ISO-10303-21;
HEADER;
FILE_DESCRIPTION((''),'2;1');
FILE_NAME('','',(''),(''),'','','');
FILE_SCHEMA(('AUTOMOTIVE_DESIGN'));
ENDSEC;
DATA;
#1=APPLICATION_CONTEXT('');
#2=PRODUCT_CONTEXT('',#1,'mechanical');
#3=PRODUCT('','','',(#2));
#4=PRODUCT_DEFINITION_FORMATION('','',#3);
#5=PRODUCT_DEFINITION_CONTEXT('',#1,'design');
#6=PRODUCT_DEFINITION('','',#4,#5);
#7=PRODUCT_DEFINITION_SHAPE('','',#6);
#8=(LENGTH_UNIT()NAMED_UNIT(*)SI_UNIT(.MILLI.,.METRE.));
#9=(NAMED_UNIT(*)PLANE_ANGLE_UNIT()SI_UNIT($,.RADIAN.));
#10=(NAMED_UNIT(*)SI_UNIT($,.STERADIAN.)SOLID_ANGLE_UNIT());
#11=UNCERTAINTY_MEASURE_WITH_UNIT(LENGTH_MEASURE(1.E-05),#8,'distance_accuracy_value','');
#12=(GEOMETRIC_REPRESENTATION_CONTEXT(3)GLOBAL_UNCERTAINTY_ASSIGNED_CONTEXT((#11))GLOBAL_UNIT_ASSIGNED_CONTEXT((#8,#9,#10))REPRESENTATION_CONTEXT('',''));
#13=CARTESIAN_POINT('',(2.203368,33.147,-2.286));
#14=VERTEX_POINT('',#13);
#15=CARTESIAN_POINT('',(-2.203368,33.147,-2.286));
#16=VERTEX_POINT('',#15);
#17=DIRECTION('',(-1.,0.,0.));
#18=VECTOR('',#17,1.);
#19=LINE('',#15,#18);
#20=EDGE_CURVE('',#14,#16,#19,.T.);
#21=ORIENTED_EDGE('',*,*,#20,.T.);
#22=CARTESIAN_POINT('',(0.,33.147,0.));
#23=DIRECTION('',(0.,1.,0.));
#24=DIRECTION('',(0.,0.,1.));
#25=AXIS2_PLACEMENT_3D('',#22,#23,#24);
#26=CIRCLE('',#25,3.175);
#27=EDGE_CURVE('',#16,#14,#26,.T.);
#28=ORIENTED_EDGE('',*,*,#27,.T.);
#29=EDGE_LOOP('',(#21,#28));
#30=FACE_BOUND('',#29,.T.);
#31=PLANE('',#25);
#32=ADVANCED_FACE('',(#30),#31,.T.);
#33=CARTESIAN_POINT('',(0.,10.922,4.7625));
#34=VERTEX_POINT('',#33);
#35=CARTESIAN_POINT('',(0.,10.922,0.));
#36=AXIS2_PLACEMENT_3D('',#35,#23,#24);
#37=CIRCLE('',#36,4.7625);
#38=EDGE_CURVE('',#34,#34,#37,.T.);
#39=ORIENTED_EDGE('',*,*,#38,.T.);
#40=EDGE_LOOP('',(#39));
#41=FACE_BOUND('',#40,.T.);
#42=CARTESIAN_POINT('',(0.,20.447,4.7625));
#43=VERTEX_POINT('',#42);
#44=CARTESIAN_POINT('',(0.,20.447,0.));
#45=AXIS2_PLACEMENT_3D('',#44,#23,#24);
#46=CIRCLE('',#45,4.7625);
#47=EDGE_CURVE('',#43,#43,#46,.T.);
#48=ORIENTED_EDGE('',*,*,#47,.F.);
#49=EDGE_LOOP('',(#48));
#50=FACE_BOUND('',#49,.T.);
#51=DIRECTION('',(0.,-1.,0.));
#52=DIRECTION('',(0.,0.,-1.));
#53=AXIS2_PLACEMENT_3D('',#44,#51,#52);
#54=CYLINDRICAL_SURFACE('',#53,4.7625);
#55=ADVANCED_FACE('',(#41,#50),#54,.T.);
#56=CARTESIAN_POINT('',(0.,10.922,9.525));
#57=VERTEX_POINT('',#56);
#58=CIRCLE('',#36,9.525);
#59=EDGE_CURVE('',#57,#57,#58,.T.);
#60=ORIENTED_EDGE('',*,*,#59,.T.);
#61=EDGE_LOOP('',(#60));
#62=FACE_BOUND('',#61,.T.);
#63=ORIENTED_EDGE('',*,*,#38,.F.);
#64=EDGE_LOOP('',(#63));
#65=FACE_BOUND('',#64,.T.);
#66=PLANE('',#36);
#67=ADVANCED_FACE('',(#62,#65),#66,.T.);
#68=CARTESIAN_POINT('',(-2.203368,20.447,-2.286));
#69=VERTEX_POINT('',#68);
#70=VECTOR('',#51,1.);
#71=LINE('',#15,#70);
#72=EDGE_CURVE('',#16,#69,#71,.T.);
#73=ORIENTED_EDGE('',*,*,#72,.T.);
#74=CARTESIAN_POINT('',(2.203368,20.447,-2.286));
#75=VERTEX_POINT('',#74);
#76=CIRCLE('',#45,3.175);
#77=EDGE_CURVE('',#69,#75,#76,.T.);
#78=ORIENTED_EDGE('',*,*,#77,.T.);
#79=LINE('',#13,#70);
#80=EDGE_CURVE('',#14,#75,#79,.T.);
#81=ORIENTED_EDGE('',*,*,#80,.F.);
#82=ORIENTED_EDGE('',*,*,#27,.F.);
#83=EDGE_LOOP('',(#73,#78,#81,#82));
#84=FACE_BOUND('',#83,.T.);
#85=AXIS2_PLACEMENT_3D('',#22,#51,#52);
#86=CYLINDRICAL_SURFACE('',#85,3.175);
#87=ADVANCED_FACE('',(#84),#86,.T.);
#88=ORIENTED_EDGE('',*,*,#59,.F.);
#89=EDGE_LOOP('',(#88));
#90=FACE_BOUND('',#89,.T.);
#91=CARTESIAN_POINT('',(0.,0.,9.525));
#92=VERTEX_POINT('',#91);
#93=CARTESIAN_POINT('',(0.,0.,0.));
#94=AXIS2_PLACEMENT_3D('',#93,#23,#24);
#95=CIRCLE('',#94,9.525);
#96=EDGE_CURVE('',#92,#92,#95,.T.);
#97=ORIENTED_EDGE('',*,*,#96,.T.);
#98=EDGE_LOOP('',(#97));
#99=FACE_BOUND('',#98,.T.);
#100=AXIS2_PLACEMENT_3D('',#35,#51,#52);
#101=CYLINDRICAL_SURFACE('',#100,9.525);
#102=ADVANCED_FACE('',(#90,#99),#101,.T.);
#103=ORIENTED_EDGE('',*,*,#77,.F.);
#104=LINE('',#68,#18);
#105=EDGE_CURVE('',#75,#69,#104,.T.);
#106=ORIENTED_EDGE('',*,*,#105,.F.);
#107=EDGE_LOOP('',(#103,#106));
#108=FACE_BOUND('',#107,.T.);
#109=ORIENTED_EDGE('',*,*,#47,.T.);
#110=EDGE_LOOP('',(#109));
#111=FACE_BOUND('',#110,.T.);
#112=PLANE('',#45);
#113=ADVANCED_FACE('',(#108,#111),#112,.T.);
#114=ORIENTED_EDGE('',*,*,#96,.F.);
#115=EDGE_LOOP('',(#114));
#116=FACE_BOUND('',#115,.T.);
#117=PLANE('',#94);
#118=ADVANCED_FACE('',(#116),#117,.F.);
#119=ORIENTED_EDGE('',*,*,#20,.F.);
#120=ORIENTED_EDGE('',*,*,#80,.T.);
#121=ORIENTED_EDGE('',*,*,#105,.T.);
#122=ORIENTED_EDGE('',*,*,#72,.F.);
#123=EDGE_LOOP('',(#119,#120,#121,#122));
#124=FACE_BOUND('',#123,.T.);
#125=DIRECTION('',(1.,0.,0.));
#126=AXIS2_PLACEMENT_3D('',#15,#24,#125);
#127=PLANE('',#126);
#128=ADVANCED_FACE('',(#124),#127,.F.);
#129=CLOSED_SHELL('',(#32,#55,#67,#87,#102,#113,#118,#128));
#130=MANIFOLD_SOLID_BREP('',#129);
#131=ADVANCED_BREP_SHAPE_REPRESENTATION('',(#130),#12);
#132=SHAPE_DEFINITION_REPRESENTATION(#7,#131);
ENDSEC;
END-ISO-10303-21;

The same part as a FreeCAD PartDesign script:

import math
import FreeCAD as App
import Part
import Sketcher
from FreeCAD import Vector
Q = App.Units.Quantity

doc = App.newDocument("Part")
body = doc.addObject("PartDesign::Body", "Body")

# Sketch on XZ plane
sketch1 = body.newObject("Sketcher::SketchObject", "Sketch")
sketch1.AttachmentSupport = (doc.getObject("XZ_Plane"), [""])
sketch1.MapMode = "FlatFace"
sketch1.addGeometry(Part.Circle(Vector(0, 0, 0), Vector(0, 0, 1), 10), False)
sketch1.addConstraint(Sketcher.Constraint("Coincident", 0, 3, -1, 1))
sketch1.addConstraint(Sketcher.Constraint("Diameter", 0, Q("0.75 in")))
pad1 = body.newObject("PartDesign::Pad", "Pad")
pad1.Profile = sketch1
pad1.Length = Q("0.43 in")
pad1.Reversed = True

# Sketch on XZ plane
sketch2 = body.newObject("Sketcher::SketchObject", "Sketch001")
sketch2.AttachmentSupport = (doc.getObject("XZ_Plane"), [""])
sketch2.MapMode = "FlatFace"
sketch2.AttachmentOffset = App.Placement(Vector(0, 0, -0.43 * 25.4), App.Rotation())
sketch2.addGeometry(Part.Circle(Vector(0, 0, 0), Vector(0, 0, 1), 4.8), False)
sketch2.addConstraint(Sketcher.Constraint("Coincident", 0, 3, -1, 1))
sketch2.addConstraint(Sketcher.Constraint("Diameter", 0, Q("0.375 in")))
pad2 = body.newObject("PartDesign::Pad", "Pad001")
pad2.Profile = sketch2
pad2.Length = Q("0.375 in")
pad2.Reversed = True

# Sketch on XZ plane
sketch3 = body.newObject("Sketcher::SketchObject", "Sketch002")
sketch3.AttachmentSupport = (doc.getObject("XZ_Plane"), [""])
sketch3.MapMode = "FlatFace"
sketch3.AttachmentOffset = App.Placement(Vector(0, 0, -0.805 * 25.4), App.Rotation())
sketch3.addGeometry(Part.LineSegment(Vector(2.2, -2.3, 0), Vector(-2.2, -2.3, 0)), False)
sketch3.addGeometry(Part.ArcOfCircle(Part.Circle(Vector(0, 0, 0), Vector(0, 0, 1), 3.2), math.radians(-46), math.radians(226)), False)
sketch3.addConstraint(Sketcher.Constraint("Coincident", 0, 1, 1, 1))
sketch3.addConstraint(Sketcher.Constraint("Coincident", 1, 2, 0, 2))
sketch3.addConstraint(Sketcher.Constraint("Horizontal", 0))
sketch3.addConstraint(Sketcher.Constraint("Coincident", 1, 3, -1, 1))
sketch3.addConstraint(Sketcher.Constraint("Radius", 1, Q("0.125 in")))
sketch3.addConstraint(Sketcher.Constraint("DistanceY", 0, 1, -1, 1, Q("0.09 in")))
pad3 = body.newObject("PartDesign::Pad", "Pad002")
pad3.Profile = sketch3
pad3.Length = Q("0.5 in")
pad3.Reversed = True

doc.recompute()
